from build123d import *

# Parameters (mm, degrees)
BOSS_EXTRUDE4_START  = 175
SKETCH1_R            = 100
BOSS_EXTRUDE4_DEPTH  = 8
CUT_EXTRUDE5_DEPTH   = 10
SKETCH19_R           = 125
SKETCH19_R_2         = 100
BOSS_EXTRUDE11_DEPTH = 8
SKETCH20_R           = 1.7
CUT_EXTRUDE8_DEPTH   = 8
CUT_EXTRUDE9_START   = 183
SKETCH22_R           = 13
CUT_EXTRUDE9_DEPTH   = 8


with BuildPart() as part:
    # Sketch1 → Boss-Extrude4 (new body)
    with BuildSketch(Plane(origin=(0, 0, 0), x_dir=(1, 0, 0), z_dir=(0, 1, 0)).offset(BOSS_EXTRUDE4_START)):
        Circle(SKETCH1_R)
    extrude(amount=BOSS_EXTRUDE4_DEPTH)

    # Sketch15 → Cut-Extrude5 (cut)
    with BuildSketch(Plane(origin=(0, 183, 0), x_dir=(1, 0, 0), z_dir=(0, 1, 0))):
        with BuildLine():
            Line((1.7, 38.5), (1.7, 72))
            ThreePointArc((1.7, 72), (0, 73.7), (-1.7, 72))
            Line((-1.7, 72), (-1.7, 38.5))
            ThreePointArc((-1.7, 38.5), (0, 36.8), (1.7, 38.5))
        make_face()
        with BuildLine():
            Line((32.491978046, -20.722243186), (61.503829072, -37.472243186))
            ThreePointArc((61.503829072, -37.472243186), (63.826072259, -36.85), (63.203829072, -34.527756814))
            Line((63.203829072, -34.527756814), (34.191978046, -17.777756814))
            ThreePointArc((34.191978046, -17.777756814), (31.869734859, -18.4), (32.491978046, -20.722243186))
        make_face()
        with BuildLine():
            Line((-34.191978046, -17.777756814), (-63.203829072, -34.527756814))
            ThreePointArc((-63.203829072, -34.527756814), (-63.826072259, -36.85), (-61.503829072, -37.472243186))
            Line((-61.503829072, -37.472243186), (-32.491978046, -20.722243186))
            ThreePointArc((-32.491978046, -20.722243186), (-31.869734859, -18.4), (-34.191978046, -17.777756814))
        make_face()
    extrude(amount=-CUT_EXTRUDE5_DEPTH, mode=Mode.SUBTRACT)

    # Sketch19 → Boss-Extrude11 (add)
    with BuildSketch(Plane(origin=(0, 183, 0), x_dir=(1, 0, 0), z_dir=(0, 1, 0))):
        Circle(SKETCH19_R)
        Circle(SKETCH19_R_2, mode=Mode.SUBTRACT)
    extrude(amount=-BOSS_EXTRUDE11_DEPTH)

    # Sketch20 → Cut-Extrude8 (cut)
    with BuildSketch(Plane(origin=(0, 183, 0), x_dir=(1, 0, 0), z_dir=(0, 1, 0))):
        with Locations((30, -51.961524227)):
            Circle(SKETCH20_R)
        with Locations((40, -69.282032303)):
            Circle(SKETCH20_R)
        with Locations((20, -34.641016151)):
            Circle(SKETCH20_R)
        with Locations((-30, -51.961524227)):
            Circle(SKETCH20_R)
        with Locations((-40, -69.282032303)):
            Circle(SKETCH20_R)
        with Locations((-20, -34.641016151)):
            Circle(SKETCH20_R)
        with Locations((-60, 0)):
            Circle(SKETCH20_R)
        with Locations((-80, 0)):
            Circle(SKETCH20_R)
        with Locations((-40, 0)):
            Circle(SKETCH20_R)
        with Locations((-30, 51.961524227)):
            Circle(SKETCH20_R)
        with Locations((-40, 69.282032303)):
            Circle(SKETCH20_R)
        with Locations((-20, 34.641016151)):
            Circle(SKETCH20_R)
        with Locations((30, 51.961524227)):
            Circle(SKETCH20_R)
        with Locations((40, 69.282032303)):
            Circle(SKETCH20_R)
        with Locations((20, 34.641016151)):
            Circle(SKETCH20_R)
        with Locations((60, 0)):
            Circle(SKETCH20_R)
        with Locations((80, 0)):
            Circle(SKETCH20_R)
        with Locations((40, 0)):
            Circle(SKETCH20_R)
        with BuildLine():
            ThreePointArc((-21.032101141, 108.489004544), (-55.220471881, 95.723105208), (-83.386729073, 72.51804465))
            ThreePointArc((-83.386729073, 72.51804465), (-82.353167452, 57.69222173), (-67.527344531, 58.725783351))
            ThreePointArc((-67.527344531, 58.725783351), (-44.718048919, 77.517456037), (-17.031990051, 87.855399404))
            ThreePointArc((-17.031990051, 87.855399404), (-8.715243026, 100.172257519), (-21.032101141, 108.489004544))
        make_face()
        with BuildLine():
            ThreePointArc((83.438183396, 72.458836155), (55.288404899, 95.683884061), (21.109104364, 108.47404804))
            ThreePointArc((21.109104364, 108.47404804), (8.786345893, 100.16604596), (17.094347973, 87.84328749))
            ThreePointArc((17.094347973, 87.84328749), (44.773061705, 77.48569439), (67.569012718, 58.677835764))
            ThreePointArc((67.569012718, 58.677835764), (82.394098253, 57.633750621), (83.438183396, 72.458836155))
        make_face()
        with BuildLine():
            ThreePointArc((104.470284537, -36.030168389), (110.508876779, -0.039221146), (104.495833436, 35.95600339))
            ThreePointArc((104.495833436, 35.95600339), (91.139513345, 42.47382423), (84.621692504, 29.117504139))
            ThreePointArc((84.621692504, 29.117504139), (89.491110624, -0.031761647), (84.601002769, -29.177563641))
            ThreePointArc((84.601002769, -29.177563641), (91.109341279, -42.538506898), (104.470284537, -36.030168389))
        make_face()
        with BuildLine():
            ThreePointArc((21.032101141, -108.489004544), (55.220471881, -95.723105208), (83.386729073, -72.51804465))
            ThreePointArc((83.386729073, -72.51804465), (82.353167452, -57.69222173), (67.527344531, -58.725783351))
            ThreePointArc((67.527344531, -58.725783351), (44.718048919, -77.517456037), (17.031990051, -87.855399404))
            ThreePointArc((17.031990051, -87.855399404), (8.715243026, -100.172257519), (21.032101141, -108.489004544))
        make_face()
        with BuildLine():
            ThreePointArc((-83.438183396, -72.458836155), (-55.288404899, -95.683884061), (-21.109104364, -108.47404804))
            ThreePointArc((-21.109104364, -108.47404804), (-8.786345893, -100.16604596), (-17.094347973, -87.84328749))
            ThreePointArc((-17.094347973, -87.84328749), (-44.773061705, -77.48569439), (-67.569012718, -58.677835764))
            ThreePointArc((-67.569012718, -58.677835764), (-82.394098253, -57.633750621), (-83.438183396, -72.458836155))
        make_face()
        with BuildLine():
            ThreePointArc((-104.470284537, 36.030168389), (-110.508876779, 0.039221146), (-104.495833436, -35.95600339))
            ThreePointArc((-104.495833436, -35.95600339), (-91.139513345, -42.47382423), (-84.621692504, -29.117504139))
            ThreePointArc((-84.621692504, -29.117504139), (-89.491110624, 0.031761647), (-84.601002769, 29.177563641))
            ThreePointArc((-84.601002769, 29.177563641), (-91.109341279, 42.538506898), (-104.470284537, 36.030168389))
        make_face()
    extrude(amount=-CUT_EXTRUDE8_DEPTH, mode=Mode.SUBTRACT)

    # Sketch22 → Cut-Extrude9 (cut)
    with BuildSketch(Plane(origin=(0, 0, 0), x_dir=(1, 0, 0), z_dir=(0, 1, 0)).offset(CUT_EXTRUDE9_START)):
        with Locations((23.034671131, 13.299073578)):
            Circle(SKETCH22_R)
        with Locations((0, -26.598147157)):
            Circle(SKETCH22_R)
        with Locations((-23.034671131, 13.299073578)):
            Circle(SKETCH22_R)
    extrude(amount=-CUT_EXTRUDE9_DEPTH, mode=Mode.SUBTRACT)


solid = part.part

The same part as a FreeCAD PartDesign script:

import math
import FreeCAD as App
import Part
import Sketcher

V = App.Vector
Q = App.Units.Quantity

doc = App.newDocument("Part")
params = doc.addObject("Spreadsheet::Sheet", "Params")
for row, (alias, value) in enumerate([
    ("sketch1_diameter", "200 mm"),
    ("pad1_length", "8 mm"),
    ("sketch2_radius", "1.7 mm"),
    ("sketch2_height", "33.5 mm"),
    ("sketch2_length", "33.5 mm"),
    ("pocket1_length", "10 mm"),
    ("sketch3_diameter", "250 mm"),
    ("sketch3_diameter2", "200 mm"),
    ("pad2_length", "8 mm"),
    ("sketch4_diameter", "3.4 mm"),
    ("pocket2_length", "8 mm"),
    ("sketch5_diameter", "26 mm"),
    ("pocket3_length", "8 mm"),
], start=1):
    params.set(f"A{row}", alias)
    params.set(f"B{row}", "=" + value)
    params.setAlias(f"B{row}", alias)

body = doc.addObject("PartDesign::Body", "Body")

# Sketch on XZ plane
sketch1 = doc.addObject("Sketcher::SketchObject", "Sketch")
body.addObject(sketch1)
sketch1.AttachmentSupport = (doc.XZ_Plane, [""])
sketch1.MapMode = "FlatFace"
sketch1.AttachmentOffset = App.Placement(V(0, 0, -175), App.Rotation())
sketch1.addGeometry(Part.Circle(V(0, 0, 0), V(0, 0, 1), 100), False)
sketch1.addConstraint([
    Sketcher.Constraint("Coincident", 0, 3, -1, 1),
    Sketcher.Constraint("Diameter", 0, 200.0),
])
sketch1.setExpression("Constraints[1]", "Params.sketch1_diameter")
pad1 = doc.addObject("PartDesign::Pad", "Pad")
body.addObject(pad1)
pad1.Profile = sketch1
pad1.setExpression("Length", "Params.pad1_length")
pad1.Reversed = True

# Sketch on XZ plane
sketch2 = doc.addObject("Sketcher::SketchObject", "Sketch001")
body.addObject(sketch2)
sketch2.AttachmentSupport = (doc.XZ_Plane, [""])
sketch2.MapMode = "FlatFace"
sketch2.AttachmentOffset = App.Placement(V(0, 0, -183), App.Rotation())
sketch2.addGeometry([
    Part.LineSegment(V(1.7, -38.5, 0), V(1.7, -72, 0)),  # 0
    Part.ArcOfCircle(Part.Circle(V(0, -72, 0), V(0, 0, 1), 1.7), math.radians(180), math.radians(360)),  # 1
    Part.LineSegment(V(-1.7, -72, 0), V(-1.7, -38.5, 0)),  # 2
    Part.ArcOfCircle(Part.Circle(V(0, -38.5, 0), V(0, 0, 1), 1.7), math.radians(0), math.radians(180)),  # 3
    Part.LineSegment(V(32.5, 20.7, 0), V(61.5, 37.5, 0)),  # 4
    Part.ArcOfCircle(Part.Circle(V(62.4, 36, 0), V(0, 0, 1), 1.7), math.radians(-60), math.radians(120)),  # 5
    Part.LineSegment(V(63.2, 34.5, 0), V(34.2, 17.8, 0)),  # 6
    Part.ArcOfCircle(Part.Circle(V(33.3, 19.2, 0), V(0, 0, 1), 1.7), math.radians(120), math.radians(300)),  # 7
    Part.LineSegment(V(-34.2, 17.8, 0), V(-63.2, 34.5, 0)),  # 8
    Part.ArcOfCircle(Part.Circle(V(-62.4, 36, 0), V(0, 0, 1), 1.7), math.radians(60), math.radians(240)),  # 9
    Part.LineSegment(V(-61.5, 37.5, 0), V(-32.5, 20.7, 0)),  # 10
    Part.ArcOfCircle(Part.Circle(V(-33.3, 19.2, 0), V(0, 0, 1), 1.7), math.radians(-120), math.radians(60)),  # 11
], False)
sketch2.addConstraint([
    Sketcher.Constraint("Tangent", 0, 2, 1, 2),
    Sketcher.Constraint("Tangent", 1, 1, 2, 1),
    Sketcher.Constraint("Tangent", 2, 2, 3, 2),
    Sketcher.Constraint("Tangent", 3, 1, 0, 1),
    Sketcher.Constraint("Tangent", 4, 2, 5, 2),
    Sketcher.Constraint("Tangent", 5, 1, 6, 1),
    Sketcher.Constraint("Tangent", 6, 2, 7, 2),
    Sketcher.Constraint("Tangent", 7, 1, 4, 1),
    Sketcher.Constraint("Tangent", 8, 2, 9, 2),
    Sketcher.Constraint("Tangent", 9, 1, 10, 1),
    Sketcher.Constraint("Tangent", 10, 2, 11, 2),
    Sketcher.Constraint("Tangent", 11, 1, 8, 1),
    Sketcher.Constraint("Vertical", 0),
    Sketcher.Constraint("Vertical", 2),
    Sketcher.Constraint("Equal", 3, 5),
    Sketcher.Constraint("Equal", 5, 7),
    Sketcher.Constraint("Equal", 7, 9),
    Sketcher.Constraint("Equal", 9, 11),
    Sketcher.Constraint("Symmetric", 5, 3, 9, 3, -2),
    Sketcher.Constraint("Symmetric", 7, 3, 11, 3, -2),
    Sketcher.Constraint("PointOnObject", 1, 3, -2),
    Sketcher.Constraint("Radius", 1, 1.7),
    Sketcher.Constraint("Angle", 4, Q("30 deg")),
    Sketcher.Constraint("DistanceY", 0, 2, 0, 1, 33.5),
    Sketcher.Constraint("DistanceY", 1, 3, -1, 1, 72.0),
    Sketcher.Constraint("DistanceY", -1, 1, 5, 3, 36.0),
    Sketcher.Constraint("Distance", 4, 33.5),
    Sketcher.Constraint("DistanceX", -1, 1, 5, 3, 62.353829),
])
sketch2.setExpression("Constraints[21]", "Params.sketch2_radius")
sketch2.setExpression("Constraints[23]", "Params.sketch2_height")
sketch2.setExpression("Constraints[26]", "Params.sketch2_length")
pocket1 = doc.addObject("PartDesign::Pocket", "Pocket")
body.addObject(pocket1)
pocket1.Profile = sketch2
pocket1.setExpression("Length", "Params.pocket1_length")
pocket1.Reversed = True

# Sketch on XZ plane
sketch3 = doc.addObject("Sketcher::SketchObject", "Sketch002")
body.addObject(sketch3)
sketch3.AttachmentSupport = (doc.XZ_Plane, [""])
sketch3.MapMode = "FlatFace"
sketch3.AttachmentOffset = App.Placement(V(0, 0, -183), App.Rotation())
sketch3.addGeometry([
    Part.Circle(V(0, 0, 0), V(0, 0, 1), 125),
    Part.Circle(V(0, 0, 0), V(0, 0, 1), 100),
], False)
sketch3.addConstraint([
    Sketcher.Constraint("Coincident", 0, 3, -1, 1),
    Sketcher.Constraint("Coincident", 1, 3, -1, 1),
    Sketcher.Constraint("Diameter", 0, 250.0),
    Sketcher.Constraint("Diameter", 1, 200.0),
])
sketch3.setExpression("Constraints[2]", "Params.sketch3_diameter")
sketch3.setExpression("Constraints[3]", "Params.sketch3_diameter2")
pad2 = doc.addObject("PartDesign::Pad", "Pad001")
body.addObject(pad2)
pad2.Profile = sketch3
pad2.setExpression("Length", "Params.pad2_length")

# Sketch on XZ plane
sketch4 = doc.addObject("Sketcher::SketchObject", "Sketch003")
body.addObject(sketch4)
sketch4.AttachmentSupport = (doc.XZ_Plane, [""])
sketch4.MapMode = "FlatFace"
sketch4.AttachmentOffset = App.Placement(V(0, 0, -183), App.Rotation())
sketch4.addGeometry([
    Part.Circle(V(30, 52, 0), V(0, 0, 1), 1.7),  # 0
    Part.Circle(V(40, 69.3, 0), V(0, 0, 1), 1.7),  # 1
    Part.Circle(V(20, 34.6, 0), V(0, 0, 1), 1.7),  # 2
    Part.Circle(V(-30, 52, 0), V(0, 0, 1), 1.7),  # 3
    Part.Circle(V(-40, 69.3, 0), V(0, 0, 1), 1.7),  # 4
    Part.Circle(V(-20, 34.6, 0), V(0, 0, 1), 1.7),  # 5
    Part.Circle(V(-60, 0, 0), V(0, 0, 1), 1.7),  # 6
    Part.Circle(V(-80, 0, 0), V(0, 0, 1), 1.7),  # 7
    Part.Circle(V(-40, 0, 0), V(0, 0, 1), 1.7),  # 8
    Part.Circle(V(-30, -52, 0), V(0, 0, 1), 1.7),  # 9
    Part.Circle(V(-40, -69.3, 0), V(0, 0, 1), 1.7),  # 10
    Part.Circle(V(-20, -34.6, 0), V(0, 0, 1), 1.7),  # 11
    Part.Circle(V(30, -52, 0), V(0, 0, 1), 1.7),  # 12
    Part.Circle(V(40, -69.3, 0), V(0, 0, 1), 1.7),  # 13
    Part.Circle(V(20, -34.6, 0), V(0, 0, 1), 1.7),  # 14
    Part.Circle(V(60, 0, 0), V(0, 0, 1), 1.7),  # 15
    Part.Circle(V(80, 0, 0), V(0, 0, 1), 1.7),  # 16
    Part.Circle(V(40, 0, 0), V(0, 0, 1), 1.7),  # 17
    Part.ArcOfCircle(Part.Circle(V(0, 0, 0), V(0, 0, 1), 110.5), math.radians(-139), math.radians(-101)),  # 18
    Part.ArcOfCircle(Part.Circle(V(-75.5, -65.6, 0), V(0, 0, 1), 10.5), math.radians(41), math.radians(221)),  # 19
    Part.ArcOfCircle(Part.Circle(V(0, 0, 0), V(0, 0, 1), 89.5), math.radians(-139), math.radians(-101)),  # 20
    Part.ArcOfCircle(Part.Circle(V(-19, -98.2, 0), V(0, 0, 1), 10.5), math.radians(-101), math.radians(79)),  # 21
    Part.ArcOfCircle(Part.Circle(V(0, 0, 0), V(0, 0, 1), 110.5), math.radians(-79), math.radians(-41)),  # 22
    Part.ArcOfCircle(Part.Circle(V(19.1, -98.2, 0), V(0, 0, 1), 10.5), math.radians(101), math.radians(281)),  # 23
    Part.ArcOfCircle(Part.Circle(V(0, 0, 0), V(0, 0, 1), 89.5), math.radians(-79), math.radians(-41)),  # 24
    Part.ArcOfCircle(Part.Circle(V(75.5, -65.6, 0), V(0, 0, 1), 10.5), math.radians(-41), math.radians(139)),  # 25
    Part.ArcOfCircle(Part.Circle(V(0, 0, 0), V(0, 0, 1), 110.5), math.radians(-19), math.radians(19)),  # 26
    Part.ArcOfCircle(Part.Circle(V(94.6, -32.5, 0), V(0, 0, 1), 10.5), math.radians(161), math.radians(341)),  # 27
    Part.ArcOfCircle(Part.Circle(V(0, 0, 0), V(0, 0, 1), 89.5), math.radians(-19), math.radians(19)),  # 28
    Part.ArcOfCircle(Part.Circle(V(94.5, 32.6, 0), V(0, 0, 1), 10.5), math.radians(19), math.radians(199)),  # 29
    Part.ArcOfCircle(Part.Circle(V(0, 0, 0), V(0, 0, 1), 110.5), math.radians(41), math.radians(79)),  # 30
    Part.ArcOfCircle(Part.Circle(V(75.5, 65.6, 0), V(0, 0, 1), 10.5), math.radians(-139), math.radians(41)),  # 31
    Part.ArcOfCircle(Part.Circle(V(0, 0, 0), V(0, 0, 1), 89.5), math.radians(41), math.radians(79)),  # 32
    Part.ArcOfCircle(Part.Circle(V(19, 98.2, 0), V(0, 0, 1), 10.5), math.radians(79), math.radians(259)),  # 33
    Part.ArcOfCircle(Part.Circle(V(0, 0, 0), V(0, 0, 1), 110.5), math.radians(101), math.radians(139)),  # 34
    Part.ArcOfCircle(Part.Circle(V(-19.1, 98.2, 0), V(0, 0, 1), 10.5), math.radians(-79), math.radians(101)),  # 35
    Part.ArcOfCircle(Part.Circle(V(0, 0, 0), V(0, 0, 1), 89.5), math.radians(101), math.radians(139)),  # 36
    Part.ArcOfCircle(Part.Circle(V(-75.5, 65.6, 0), V(0, 0, 1), 10.5), math.radians(139), math.radians(319)),  # 37
    Part.ArcOfCircle(Part.Circle(V(0, 0, 0), V(0, 0, 1), 110.5), math.radians(161), math.radians(199)),  # 38
    Part.ArcOfCircle(Part.Circle(V(-94.6, 32.5, 0), V(0, 0, 1), 10.5), math.radians(-19), math.radians(161)),  # 39
    Part.ArcOfCircle(Part.Circle(V(0, 0, 0), V(0, 0, 1), 89.5), math.radians(161), math.radians(199)),  # 40
    Part.ArcOfCircle(Part.Circle(V(-94.5, -32.6, 0), V(0, 0, 1), 10.5), math.radians(-161), math.radians(19)),  # 41
], False)
sketch4.addConstraint([
    Sketcher.Constraint("Tangent", 18, 1, 19, 2),
    Sketcher.Constraint("Tangent", 19, 1, 20, 1),
    Sketcher.Constraint("Tangent", 20, 2, 21, 2),
    Sketcher.Constraint("Tangent", 21, 1, 18, 2),
    Sketcher.Constraint("Tangent", 22, 1, 23, 2),
    Sketcher.Constraint("Tangent", 23, 1, 24, 1),
    Sketcher.Constraint("Tangent", 24, 2, 25, 2),
    Sketcher.Constraint("Tangent", 25, 1, 22, 2),
    Sketcher.Constraint("Tangent", 26, 1, 27, 2),
    Sketcher.Constraint("Tangent", 27, 1, 28, 1),
    Sketcher.Constraint("Tangent", 28, 2, 29, 2),
    Sketcher.Constraint("Tangent", 29, 1, 26, 2),
    Sketcher.Constraint("Tangent", 30, 1, 31, 2),
    Sketcher.Constraint("Tangent", 31, 1, 32, 1),
    Sketcher.Constraint("Tangent", 32, 2, 33, 2),
    Sketcher.Constraint("Tangent", 33, 1, 30, 2),
    Sketcher.Constraint("Tangent", 34, 1, 35, 2),
    Sketcher.Constraint("Tangent", 35, 1, 36, 1),
    Sketcher.Constraint("Tangent", 36, 2, 37, 2),
    Sketcher.Constraint("Tangent", 37, 1, 34, 2),
    Sketcher.Constraint("Tangent", 38, 1, 39, 2),
    Sketcher.Constraint("Tangent", 39, 1, 40, 1),
    Sketcher.Constraint("Tangent", 40, 2, 41, 2),
    Sketcher.Constraint("Tangent", 41, 1, 38, 2),
    Sketcher.Constraint("Coincident", 18, 3, -1, 1),
    Sketcher.Constraint("Coincident", 20, 3, -1, 1),
    Sketcher.Constraint("Coincident", 22, 3, -1, 1),
    Sketcher.Constraint("Coincident", 24, 3, -1, 1),
    Sketcher.Constraint("Coincident", 26, 3, -1, 1),
    Sketcher.Constraint("Coincident", 28, 3, -1, 1),
    Sketcher.Constraint("Coincident", 30, 3, -1, 1),
    Sketcher.Constraint("Coincident", 32, 3, -1, 1),
    Sketcher.Constraint("Coincident", 34, 3, -1, 1),
    Sketcher.Constraint("Coincident", 36, 3, -1, 1),
    Sketcher.Constraint("Coincident", 38, 3, -1, 1),
    Sketcher.Constraint("Coincident", 40, 3, -1, 1),
    Sketcher.Constraint("Equal", 0, 1),
    Sketcher.Constraint("Equal", 1, 2),
    Sketcher.Constraint("Equal", 2, 3),
    Sketcher.Constraint("Equal", 3, 4),
    Sketcher.Constraint("Equal", 4, 5),
    Sketcher.Constraint("Equal", 5, 6),
    Sketcher.Constraint("Equal", 6, 7),
    Sketcher.Constraint("Equal", 7, 8),
    Sketcher.Constraint("Equal", 8, 9),
    Sketcher.Constraint("Equal", 9, 10),
    Sketcher.Constraint("Equal", 10, 11),
    Sketcher.Constraint("Equal", 11, 12),
    Sketcher.Constraint("Equal", 12, 13),
    Sketcher.Constraint("Equal", 13, 14),
    Sketcher.Constraint("Equal", 14, 15),
    Sketcher.Constraint("Equal", 15, 16),
    Sketcher.Constraint("Equal", 16, 17),
    Sketcher.Constraint("Equal", 18, 22),
    Sketcher.Constraint("Equal", 21, 23),
    Sketcher.Constraint("Equal", 22, 26),
    Sketcher.Constraint("Equal", 25, 27),
    Sketcher.Constraint("Equal", 26, 30),
    Sketcher.Constraint("Equal", 29, 31),
    Sketcher.Constraint("Equal", 30, 34),
    Sketcher.Constraint("Equal", 33, 35),
    Sketcher.Constraint("Equal", 34, 38),
    Sketcher.Constraint("Equal", 37, 39),
    Sketcher.Constraint("Symmetric", 0, 3, 9, 3, -1, 1),
    Sketcher.Constraint("Symmetric", 1, 3, 10, 3, -1, 1),
    Sketcher.Constraint("Symmetric", 2, 3, 11, 3, -1, 1),
    Sketcher.Constraint("Symmetric", 3, 3, 12, 3, -1, 1),
    Sketcher.Constraint("Symmetric", 4, 3, 13, 3, -1, 1),
    Sketcher.Constraint("Symmetric", 5, 3, 14, 3, -1, 1),
    Sketcher.Constraint("Symmetric", 6, 3, 15, 3, -1, 1),
    Sketcher.Constraint("Symmetric", 7, 3, 16, 3, -1, 1),
    Sketcher.Constraint("Symmetric", 8, 3, 17, 3, -1, 1),
    Sketcher.Constraint("Symmetric", 0, 3, 3, 3, -2),
    Sketcher.Constraint("Symmetric", 1, 3, 4, 3, -2),
    Sketcher.Constraint("Symmetric", 2, 3, 5, 3, -2),
    Sketcher.Constraint("PointOnObject", 6, 3, -1),
    Sketcher.Constraint("PointOnObject", 7, 3, -1),
    Sketcher.Constraint("PointOnObject", 8, 3, -1),
    Sketcher.Constraint("Vertical", 4, 3, 8, 3),
    Sketcher.Constraint("Diameter", 0, 3.4),
    Sketcher.Constraint("DistanceX", -1, 1, 0, 3, 30.0),
    Sketcher.Constraint("DistanceX", -1, 1, 1, 3, 40.0),
    Sketcher.Constraint("DistanceX", -1, 1, 2, 3, 20.0),
    Sketcher.Constraint("DistanceX", 6, 3, -1, 1, 60.0),
    Sketcher.Constraint("DistanceX", 7, 3, -1, 1, 80.0),
    Sketcher.Constraint("Radius", 18, 110.508884),
    Sketcher.Constraint("Radius", 19, 10.508884),
    Sketcher.Constraint("DistanceY", 21, 3, -1, 1, 98.172202),
    Sketcher.Constraint("DistanceX", -1, 1, 25, 3, 75.503598),
    Sketcher.Constraint("DistanceY", -1, 1, 33, 3, 98.172202),
    Sketcher.Constraint("DistanceX", 37, 3, -1, 1, 75.503598),
    Sketcher.Constraint("DistanceX", 18, 1, -1, 1, 83.386729),
    Sketcher.Constraint("DistanceY", 22, 1, -1, 1, 108.474048),
    Sketcher.Constraint("DistanceY", -1, 1, 29, 1, 36.030168),
    Sketcher.Constraint("DistanceX", -1, 1, 30, 1, 83.386729),
    Sketcher.Constraint("DistanceY", -1, 1, 34, 1, 108.474048),
    Sketcher.Constraint("DistanceY", 41, 1, -1, 1, 36.030168),
    Sketcher.Constraint("DistanceY", -1, 1, 0, 3, 51.961524),
    Sketcher.Constraint("DistanceY", -1, 1, 1, 3, 69.282032),
    Sketcher.Constraint("DistanceY", -1, 1, 2, 3, 34.641016),
    Sketcher.Constraint("DistanceX", -1, 1, 27, 3, 94.558763),
    Sketcher.Constraint("DistanceX", 39, 3, -1, 1, 94.558763),
])
sketch4.setExpression("Constraints[79]", "Params.sketch4_diameter")
pocket2 = doc.addObject("PartDesign::Pocket", "Pocket001")
body.addObject(pocket2)
pocket2.Profile = sketch4
pocket2.setExpression("Length", "Params.pocket2_length")
pocket2.Reversed = True

# Sketch on XZ plane
sketch5 = doc.addObject("Sketcher::SketchObject", "Sketch004")
body.addObject(sketch5)
sketch5.AttachmentSupport = (doc.XZ_Plane, [""])
sketch5.MapMode = "FlatFace"
sketch5.AttachmentOffset = App.Placement(V(0, 0, -183), App.Rotation())
sketch5.addGeometry([
    Part.Circle(V(23, -13, 0), V(0, 0, 1), 13),
    Part.Circle(V(0, 27, 0), V(0, 0, 1), 13),
    Part.Circle(V(-23, -13, 0), V(0, 0, 1), 13),
], False)
sketch5.addConstraint([
    Sketcher.Constraint("Equal", 0, 1),
    Sketcher.Constraint("Equal", 1, 2),
    Sketcher.Constraint("Symmetric", 0, 3, 2, 3, -2),
    Sketcher.Constraint("PointOnObject", 1, 3, -2),
    Sketcher.Constraint("Diameter", 0, 26.0),
    Sketcher.Constraint("DistanceX", -1, 1, 0, 3, 23.034671),
    Sketcher.Constraint("DistanceY", 0, 3, 1, 3, 39.897221),
    Sketcher.Constraint("DistanceY", 0, 3, -1, 1, 13.299074),
])
sketch5.setExpression("Constraints[4]", "Params.sketch5_diameter")
pocket3 = doc.addObject("PartDesign::Pocket", "Pocket002")
body.addObject(pocket3)
pocket3.Profile = sketch5
pocket3.setExpression("Length", "Params.pocket3_length")
pocket3.Reversed = True

doc.recompute()
